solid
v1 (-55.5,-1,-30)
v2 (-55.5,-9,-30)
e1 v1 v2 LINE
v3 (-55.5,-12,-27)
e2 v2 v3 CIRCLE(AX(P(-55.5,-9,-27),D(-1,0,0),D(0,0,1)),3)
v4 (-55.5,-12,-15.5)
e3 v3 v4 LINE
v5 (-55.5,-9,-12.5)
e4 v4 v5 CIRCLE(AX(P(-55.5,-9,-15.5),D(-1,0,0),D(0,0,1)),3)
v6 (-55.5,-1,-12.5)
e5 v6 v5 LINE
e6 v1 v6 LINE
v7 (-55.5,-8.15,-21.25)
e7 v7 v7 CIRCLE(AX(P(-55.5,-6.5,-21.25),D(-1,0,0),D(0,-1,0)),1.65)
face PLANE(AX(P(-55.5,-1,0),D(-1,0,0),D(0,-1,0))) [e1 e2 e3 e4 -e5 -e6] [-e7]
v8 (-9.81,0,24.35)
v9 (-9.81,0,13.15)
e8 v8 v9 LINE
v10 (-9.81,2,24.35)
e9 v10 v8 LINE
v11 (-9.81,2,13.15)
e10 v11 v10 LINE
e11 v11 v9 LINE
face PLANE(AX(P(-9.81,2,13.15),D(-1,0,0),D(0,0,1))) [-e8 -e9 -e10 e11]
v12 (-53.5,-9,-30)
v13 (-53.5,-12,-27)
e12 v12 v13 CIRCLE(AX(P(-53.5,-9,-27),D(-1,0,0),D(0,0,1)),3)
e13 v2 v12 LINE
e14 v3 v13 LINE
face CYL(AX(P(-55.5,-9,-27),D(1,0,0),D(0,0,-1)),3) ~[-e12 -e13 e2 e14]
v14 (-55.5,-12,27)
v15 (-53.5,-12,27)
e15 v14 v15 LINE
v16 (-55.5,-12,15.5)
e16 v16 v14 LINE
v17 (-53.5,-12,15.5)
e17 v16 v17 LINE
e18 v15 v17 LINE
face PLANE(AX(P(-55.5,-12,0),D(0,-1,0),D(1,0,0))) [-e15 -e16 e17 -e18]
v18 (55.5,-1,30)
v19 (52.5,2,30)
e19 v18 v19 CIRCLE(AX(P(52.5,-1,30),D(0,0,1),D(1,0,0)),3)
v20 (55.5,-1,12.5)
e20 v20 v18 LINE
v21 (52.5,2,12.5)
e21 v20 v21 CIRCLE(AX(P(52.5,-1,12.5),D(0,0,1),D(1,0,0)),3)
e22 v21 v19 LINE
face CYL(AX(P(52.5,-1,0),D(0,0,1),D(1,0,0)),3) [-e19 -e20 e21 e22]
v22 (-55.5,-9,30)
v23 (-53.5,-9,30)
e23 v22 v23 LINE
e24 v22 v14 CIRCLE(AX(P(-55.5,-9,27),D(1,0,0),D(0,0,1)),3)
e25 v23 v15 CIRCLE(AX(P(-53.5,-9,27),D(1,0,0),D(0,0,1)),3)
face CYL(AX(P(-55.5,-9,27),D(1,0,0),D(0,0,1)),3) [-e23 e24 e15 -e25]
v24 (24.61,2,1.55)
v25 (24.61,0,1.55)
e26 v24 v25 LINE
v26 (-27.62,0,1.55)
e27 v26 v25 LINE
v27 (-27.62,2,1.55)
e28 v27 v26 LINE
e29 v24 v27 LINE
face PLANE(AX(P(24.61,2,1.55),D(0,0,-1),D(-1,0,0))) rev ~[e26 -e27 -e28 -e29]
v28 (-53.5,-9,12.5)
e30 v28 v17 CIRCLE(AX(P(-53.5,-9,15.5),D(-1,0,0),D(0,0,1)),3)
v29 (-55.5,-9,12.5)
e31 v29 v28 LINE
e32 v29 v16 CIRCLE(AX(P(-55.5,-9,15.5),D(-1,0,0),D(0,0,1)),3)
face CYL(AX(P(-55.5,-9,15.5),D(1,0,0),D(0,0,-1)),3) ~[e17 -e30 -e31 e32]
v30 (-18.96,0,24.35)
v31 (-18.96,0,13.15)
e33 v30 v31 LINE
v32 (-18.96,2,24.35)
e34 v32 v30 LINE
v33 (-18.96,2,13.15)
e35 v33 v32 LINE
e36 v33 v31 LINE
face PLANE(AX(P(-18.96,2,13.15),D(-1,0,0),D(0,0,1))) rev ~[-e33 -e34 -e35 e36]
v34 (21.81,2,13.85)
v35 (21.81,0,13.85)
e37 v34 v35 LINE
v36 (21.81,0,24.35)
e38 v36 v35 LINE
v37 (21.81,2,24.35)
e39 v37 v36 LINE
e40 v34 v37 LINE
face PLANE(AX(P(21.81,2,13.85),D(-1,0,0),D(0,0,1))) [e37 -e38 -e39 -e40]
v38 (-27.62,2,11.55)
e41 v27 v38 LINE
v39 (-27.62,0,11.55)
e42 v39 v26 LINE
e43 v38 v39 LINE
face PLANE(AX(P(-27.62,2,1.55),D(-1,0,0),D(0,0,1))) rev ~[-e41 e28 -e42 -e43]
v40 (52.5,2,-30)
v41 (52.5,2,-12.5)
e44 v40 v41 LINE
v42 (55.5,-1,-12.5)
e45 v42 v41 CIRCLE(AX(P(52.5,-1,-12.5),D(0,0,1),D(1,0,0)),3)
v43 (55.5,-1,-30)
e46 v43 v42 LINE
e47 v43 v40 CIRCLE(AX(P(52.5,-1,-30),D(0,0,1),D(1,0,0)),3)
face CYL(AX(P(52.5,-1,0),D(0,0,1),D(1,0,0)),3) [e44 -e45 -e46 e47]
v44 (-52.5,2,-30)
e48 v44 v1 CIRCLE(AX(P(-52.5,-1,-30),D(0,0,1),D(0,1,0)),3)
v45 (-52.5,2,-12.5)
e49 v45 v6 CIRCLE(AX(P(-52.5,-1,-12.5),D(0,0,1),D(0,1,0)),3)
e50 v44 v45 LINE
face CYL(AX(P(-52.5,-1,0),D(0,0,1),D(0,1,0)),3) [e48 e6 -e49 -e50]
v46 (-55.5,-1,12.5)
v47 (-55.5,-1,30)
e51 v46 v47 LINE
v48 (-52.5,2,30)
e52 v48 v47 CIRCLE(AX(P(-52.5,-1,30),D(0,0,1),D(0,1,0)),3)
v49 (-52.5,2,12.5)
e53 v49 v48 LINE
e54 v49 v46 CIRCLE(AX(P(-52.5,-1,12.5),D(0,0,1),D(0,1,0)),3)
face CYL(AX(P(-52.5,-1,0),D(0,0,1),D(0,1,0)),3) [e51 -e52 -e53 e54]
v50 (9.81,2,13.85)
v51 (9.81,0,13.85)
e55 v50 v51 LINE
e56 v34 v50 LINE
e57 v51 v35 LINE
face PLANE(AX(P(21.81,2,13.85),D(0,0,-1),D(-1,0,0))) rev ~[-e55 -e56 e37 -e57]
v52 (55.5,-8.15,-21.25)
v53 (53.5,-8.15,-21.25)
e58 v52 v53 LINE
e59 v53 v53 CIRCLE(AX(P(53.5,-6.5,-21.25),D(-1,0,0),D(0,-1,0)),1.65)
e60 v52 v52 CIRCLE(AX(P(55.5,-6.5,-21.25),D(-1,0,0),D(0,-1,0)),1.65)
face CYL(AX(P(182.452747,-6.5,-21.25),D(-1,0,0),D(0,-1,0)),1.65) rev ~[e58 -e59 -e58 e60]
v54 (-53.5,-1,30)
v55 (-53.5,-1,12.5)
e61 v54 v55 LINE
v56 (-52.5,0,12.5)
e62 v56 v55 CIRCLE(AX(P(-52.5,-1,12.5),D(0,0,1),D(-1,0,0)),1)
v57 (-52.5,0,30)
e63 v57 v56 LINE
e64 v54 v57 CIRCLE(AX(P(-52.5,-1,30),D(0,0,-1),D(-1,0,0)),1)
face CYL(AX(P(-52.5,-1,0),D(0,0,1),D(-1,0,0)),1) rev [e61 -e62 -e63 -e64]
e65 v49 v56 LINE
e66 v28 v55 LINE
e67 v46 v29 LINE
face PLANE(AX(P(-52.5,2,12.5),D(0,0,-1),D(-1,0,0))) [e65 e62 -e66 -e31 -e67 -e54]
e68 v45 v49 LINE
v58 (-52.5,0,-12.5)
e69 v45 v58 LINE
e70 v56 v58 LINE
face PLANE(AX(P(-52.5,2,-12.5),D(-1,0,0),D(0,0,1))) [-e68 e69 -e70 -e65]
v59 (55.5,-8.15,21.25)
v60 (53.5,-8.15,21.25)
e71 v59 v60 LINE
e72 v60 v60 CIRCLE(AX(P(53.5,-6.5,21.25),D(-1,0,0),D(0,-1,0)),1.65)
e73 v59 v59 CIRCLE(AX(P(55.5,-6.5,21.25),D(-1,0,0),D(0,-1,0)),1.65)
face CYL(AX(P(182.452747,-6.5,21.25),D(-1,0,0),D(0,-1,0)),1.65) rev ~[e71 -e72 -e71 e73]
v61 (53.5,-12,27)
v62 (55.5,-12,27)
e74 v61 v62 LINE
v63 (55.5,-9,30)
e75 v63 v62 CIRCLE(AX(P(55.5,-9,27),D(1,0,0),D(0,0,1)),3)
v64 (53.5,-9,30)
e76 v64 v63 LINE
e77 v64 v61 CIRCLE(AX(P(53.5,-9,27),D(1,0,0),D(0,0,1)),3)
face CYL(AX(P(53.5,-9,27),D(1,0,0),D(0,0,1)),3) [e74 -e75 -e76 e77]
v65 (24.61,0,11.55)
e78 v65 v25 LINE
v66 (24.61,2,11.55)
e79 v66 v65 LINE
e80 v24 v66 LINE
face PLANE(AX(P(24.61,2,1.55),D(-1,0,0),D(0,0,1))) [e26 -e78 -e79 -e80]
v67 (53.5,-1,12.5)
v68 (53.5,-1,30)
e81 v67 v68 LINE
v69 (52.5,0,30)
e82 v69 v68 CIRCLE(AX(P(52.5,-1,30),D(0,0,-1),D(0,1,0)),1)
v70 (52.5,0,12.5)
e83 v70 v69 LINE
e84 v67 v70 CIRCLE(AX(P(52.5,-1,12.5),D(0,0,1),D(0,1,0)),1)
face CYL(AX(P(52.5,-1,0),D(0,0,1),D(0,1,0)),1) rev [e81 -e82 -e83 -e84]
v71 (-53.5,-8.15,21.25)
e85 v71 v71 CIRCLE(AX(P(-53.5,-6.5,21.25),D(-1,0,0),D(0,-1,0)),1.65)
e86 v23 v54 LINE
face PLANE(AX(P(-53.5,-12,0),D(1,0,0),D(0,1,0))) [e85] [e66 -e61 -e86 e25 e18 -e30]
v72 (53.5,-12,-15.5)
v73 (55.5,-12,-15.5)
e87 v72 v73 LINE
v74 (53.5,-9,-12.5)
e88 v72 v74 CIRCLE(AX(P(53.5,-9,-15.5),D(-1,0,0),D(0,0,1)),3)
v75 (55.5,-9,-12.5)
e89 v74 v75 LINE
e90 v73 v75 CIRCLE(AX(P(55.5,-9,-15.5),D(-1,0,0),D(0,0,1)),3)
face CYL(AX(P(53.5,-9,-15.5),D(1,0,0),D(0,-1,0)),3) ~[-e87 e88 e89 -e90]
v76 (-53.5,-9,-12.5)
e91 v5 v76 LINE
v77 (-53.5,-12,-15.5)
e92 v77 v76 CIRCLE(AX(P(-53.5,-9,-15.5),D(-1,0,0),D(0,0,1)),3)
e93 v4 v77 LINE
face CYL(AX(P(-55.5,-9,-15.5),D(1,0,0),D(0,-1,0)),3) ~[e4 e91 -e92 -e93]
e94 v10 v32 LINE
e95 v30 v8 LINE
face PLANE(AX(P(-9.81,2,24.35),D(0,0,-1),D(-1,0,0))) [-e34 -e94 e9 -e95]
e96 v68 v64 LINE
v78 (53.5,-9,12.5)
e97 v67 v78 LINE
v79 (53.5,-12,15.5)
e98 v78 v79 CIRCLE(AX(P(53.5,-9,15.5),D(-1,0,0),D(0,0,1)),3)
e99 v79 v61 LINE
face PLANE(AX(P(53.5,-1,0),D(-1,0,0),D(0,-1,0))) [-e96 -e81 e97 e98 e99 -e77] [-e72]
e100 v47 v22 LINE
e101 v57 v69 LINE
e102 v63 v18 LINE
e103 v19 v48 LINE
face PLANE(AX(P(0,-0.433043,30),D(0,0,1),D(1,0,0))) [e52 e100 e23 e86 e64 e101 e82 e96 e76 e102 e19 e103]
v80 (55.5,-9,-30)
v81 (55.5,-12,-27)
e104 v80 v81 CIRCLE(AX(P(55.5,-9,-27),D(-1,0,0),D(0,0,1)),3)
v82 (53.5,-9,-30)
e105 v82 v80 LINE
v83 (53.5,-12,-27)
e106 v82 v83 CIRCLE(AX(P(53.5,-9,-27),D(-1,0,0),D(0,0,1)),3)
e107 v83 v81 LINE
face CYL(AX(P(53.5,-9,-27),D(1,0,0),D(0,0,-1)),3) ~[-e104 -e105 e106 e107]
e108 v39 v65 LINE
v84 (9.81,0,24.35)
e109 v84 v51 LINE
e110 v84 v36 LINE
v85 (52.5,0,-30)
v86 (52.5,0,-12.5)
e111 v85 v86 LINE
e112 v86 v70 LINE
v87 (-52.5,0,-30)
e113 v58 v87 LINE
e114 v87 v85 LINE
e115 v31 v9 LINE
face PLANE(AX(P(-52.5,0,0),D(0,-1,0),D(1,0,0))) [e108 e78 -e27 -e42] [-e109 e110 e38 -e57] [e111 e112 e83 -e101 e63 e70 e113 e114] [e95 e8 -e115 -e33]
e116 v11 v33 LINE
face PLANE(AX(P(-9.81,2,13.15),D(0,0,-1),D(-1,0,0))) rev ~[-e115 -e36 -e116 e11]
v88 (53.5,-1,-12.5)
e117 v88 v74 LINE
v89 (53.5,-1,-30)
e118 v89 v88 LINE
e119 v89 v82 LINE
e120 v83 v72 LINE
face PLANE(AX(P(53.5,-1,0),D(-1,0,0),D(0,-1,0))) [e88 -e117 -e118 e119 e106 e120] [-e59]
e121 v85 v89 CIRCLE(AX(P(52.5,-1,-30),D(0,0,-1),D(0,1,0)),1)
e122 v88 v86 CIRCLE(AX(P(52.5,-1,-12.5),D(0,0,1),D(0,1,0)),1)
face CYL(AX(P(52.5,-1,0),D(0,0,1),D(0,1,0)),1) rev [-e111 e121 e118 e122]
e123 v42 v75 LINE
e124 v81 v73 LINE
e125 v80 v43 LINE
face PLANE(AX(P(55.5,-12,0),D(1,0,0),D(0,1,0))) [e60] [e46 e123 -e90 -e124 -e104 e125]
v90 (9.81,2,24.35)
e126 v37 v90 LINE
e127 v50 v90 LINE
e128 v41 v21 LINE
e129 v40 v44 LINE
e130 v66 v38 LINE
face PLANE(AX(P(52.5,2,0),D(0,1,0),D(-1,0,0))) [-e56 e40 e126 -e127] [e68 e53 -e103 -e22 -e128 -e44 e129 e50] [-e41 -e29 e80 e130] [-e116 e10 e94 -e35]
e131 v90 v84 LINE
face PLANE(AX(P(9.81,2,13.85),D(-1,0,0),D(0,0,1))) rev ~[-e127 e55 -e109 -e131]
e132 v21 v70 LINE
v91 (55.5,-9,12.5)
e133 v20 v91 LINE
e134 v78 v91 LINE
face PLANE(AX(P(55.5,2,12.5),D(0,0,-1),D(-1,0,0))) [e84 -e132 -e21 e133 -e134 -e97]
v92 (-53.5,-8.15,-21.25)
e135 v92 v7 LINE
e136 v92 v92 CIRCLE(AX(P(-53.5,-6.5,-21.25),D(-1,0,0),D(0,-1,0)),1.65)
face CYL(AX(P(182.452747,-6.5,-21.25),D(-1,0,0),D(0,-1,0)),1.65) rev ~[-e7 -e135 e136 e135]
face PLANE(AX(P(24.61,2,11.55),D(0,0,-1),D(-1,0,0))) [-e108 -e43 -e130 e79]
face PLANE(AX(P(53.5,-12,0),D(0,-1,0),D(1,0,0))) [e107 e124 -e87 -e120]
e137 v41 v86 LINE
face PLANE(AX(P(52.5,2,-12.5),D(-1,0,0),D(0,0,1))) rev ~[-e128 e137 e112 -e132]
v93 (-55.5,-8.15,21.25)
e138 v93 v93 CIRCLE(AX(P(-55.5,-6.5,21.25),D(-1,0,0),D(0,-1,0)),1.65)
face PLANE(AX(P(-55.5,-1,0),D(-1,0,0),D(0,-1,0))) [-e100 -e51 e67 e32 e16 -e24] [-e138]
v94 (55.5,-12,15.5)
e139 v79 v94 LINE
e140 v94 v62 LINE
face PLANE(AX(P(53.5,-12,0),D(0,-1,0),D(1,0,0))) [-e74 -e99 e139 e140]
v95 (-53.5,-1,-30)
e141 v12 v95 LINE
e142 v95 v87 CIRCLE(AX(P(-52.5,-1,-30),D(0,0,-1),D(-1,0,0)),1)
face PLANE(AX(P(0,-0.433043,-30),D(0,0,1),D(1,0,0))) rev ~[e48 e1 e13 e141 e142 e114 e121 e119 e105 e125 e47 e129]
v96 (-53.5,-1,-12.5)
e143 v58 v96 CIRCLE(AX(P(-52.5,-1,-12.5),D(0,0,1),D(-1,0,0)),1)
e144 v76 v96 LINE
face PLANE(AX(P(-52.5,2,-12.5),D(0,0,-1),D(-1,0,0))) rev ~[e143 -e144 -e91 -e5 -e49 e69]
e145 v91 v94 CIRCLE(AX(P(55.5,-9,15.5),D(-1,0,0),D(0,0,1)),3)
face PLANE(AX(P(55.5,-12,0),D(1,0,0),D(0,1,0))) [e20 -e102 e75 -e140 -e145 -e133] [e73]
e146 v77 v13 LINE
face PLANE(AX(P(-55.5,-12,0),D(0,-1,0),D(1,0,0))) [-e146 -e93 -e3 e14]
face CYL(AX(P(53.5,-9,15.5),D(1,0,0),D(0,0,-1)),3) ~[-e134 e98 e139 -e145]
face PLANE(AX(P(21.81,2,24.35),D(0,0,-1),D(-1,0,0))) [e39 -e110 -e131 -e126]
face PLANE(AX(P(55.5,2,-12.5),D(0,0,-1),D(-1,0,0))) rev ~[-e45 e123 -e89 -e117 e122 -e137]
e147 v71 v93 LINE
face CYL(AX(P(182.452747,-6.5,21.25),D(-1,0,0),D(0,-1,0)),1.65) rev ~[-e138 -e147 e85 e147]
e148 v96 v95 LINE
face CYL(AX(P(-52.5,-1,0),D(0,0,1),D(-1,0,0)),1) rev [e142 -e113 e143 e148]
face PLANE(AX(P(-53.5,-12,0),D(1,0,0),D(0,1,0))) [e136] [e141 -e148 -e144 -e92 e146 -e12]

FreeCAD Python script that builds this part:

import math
import FreeCAD as App
import Part
import Sketcher
Q = App.Units.Quantity


def edges_at(feature, points):
    """Names of the edges that pass closest to the given points."""
    edges = feature.Shape.Edges
    near = lambda p: min(range(len(edges)), key=lambda i: edges[i].distToShape(Part.Vertex(*p))[0])
    return sorted({f"Edge{near(p) + 1}" for p in points})


def add_polygon(sketch, points):
    """Adds a closed chain of lines whose ends are joined by coincident constraints."""
    first, n = sketch.GeometryCount, len(points)
    for a, b in zip(points, points[1:] + points[:1]):
        sketch.addGeometry(Part.LineSegment(App.Vector(*a, 0), App.Vector(*b, 0)), False)
    for i in range(n):
        sketch.addConstraint(Sketcher.Constraint("Coincident", first + i, 2, first + (i + 1) % n, 1))

doc = App.newDocument("Part")
body = doc.addObject("PartDesign::Body", "Body")

# Sketch on XY plane
sketch1 = body.newObject("Sketcher::SketchObject", "Sketch")
sketch1.AttachmentSupport = (doc.getObject("XY_Plane"), [""])
sketch1.MapMode = "FlatFace"
sketch1.addGeometry(Part.LineSegment(App.Vector(-52.5, 0, 0), App.Vector(52.5, 0, 0)), False)
sketch1.addGeometry(Part.ArcOfCircle(Part.Circle(App.Vector(52.5, -1, 0), App.Vector(0, 0, 1), 1), math.radians(0), math.radians(90)), False)
sketch1.addGeometry(Part.LineSegment(App.Vector(53.5, -1, 0), App.Vector(53.5, -12, 0)), False)
sketch1.addGeometry(Part.LineSegment(App.Vector(53.5, -12, 0), App.Vector(55.5, -12, 0)), False)
sketch1.addGeometry(Part.LineSegment(App.Vector(55.5, -12, 0), App.Vector(55.5, -1, 0)), False)
sketch1.addGeometry(Part.ArcOfCircle(Part.Circle(App.Vector(52.5, -1, 0), App.Vector(0, 0, 1), 3), math.radians(0), math.radians(90)), False)
sketch1.addGeometry(Part.LineSegment(App.Vector(52.5, 2, 0), App.Vector(-52.5, 2, 0)), False)
sketch1.addGeometry(Part.ArcOfCircle(Part.Circle(App.Vector(-52.5, -1, 0), App.Vector(0, 0, 1), 3), math.radians(90), math.radians(180)), False)
sketch1.addGeometry(Part.LineSegment(App.Vector(-55.5, -1, 0), App.Vector(-55.5, -12, 0)), False)
sketch1.addGeometry(Part.LineSegment(App.Vector(-55.5, -12, 0), App.Vector(-53.5, -12, 0)), False)
sketch1.addGeometry(Part.LineSegment(App.Vector(-53.5, -12, 0), App.Vector(-53.5, -1, 0)), False)
sketch1.addGeometry(Part.ArcOfCircle(Part.Circle(App.Vector(-52.5, -1, 0), App.Vector(0, 0, 1), 1), math.radians(90), math.radians(180)), False)
sketch1.addConstraint(Sketcher.Constraint("Tangent", 0, 2, 1, 2))
sketch1.addConstraint(Sketcher.Constraint("Tangent", 1, 1, 2, 1))
sketch1.addConstraint(Sketcher.Constraint("Coincident", 2, 2, 3, 1))
sketch1.addConstraint(Sketcher.Constraint("Coincident", 3, 2, 4, 1))
sketch1.addConstraint(Sketcher.Constraint("Tangent", 4, 2, 5, 1))
sketch1.addConstraint(Sketcher.Constraint("Tangent", 5, 2, 6, 1))
sketch1.addConstraint(Sketcher.Constraint("Tangent", 6, 2, 7, 1))
sketch1.addConstraint(Sketcher.Constraint("Tangent", 7, 2, 8, 1))
sketch1.addConstraint(Sketcher.Constraint("Coincident", 8, 2, 9, 1))
sketch1.addConstraint(Sketcher.Constraint("Coincident", 9, 2, 10, 1))
sketch1.addConstraint(Sketcher.Constraint("Tangent", 10, 2, 11, 2))
sketch1.addConstraint(Sketcher.Constraint("Tangent", 11, 1, 0, 1))
sketch1.addConstraint(Sketcher.Constraint("Horizontal", 0))
sketch1.addConstraint(Sketcher.Constraint("Vertical", 2))
sketch1.addConstraint(Sketcher.Constraint("Horizontal", 3))
sketch1.addConstraint(Sketcher.Constraint("Vertical", 4))
sketch1.addConstraint(Sketcher.Constraint("Horizontal", 6))
sketch1.addConstraint(Sketcher.Constraint("Vertical", 8))
sketch1.addConstraint(Sketcher.Constraint("Horizontal", 9))
sketch1.addConstraint(Sketcher.Constraint("Vertical", 10))
sketch1.addConstraint(Sketcher.Constraint("Coincident", 5, 3, 1, 3))
sketch1.addConstraint(Sketcher.Constraint("Coincident", 11, 3, 7, 3))
sketch1.addConstraint(Sketcher.Constraint("Equal", 5, 7))
sketch1.addConstraint(Sketcher.Constraint("Symmetric", 0, 2, 11, 1, -1, 1))
sketch1.addConstraint(Sketcher.Constraint("Horizontal", 3, 2, 8, 2))
sketch1.addConstraint(Sketcher.Constraint("Radius", 1, Q("1 mm")))
sketch1.addConstraint(Sketcher.Constraint("Radius", 5, Q("3 mm")))
sketch1.addConstraint(Sketcher.Constraint("DistanceX", 0, 1, 0, 2, Q("105 mm")))
sketch1.addConstraint(Sketcher.Constraint("DistanceY", 2, 2, 2, 1, Q("11 mm")))
pad1 = body.newObject("PartDesign::Pad", "Pad")
pad1.Profile = sketch1
pad1.Length = 60
pad1.Midplane = True

# Sketch on XZ plane
sketch2 = body.newObject("Sketcher::SketchObject", "Sketch001")
sketch2.AttachmentSupport = (doc.getObject("XZ_Plane"), [""])
sketch2.MapMode = "FlatFace"
sketch2.AttachmentOffset = App.Placement(App.Vector(0, 0, -2), App.Rotation())
add_polygon(sketch2, [(55.5, 12.5), (55.5, -12.5), (52.5, -12.5), (52.5, 12.5)])  # lines 0-3
add_polygon(sketch2, [(-52.5, 12.5), (-52.5, -12.5), (-55.5, -12.5), (-55.5, 12.5)])  # lines 4-7
add_polygon(sketch2, [(21.81, 24.35), (21.81, 13.85), (9.81, 13.85), (9.81, 24.35)])  # lines 8-11
add_polygon(sketch2, [(-9.81, 24.35), (-9.81, 13.15), (-18.96, 13.15), (-18.96, 24.35)])  # lines 12-15
add_polygon(sketch2, [(24.61, 11.55), (24.61, 1.55), (-27.62, 1.55), (-27.62, 11.55)])  # lines 16-19
sketch2.addConstraint(Sketcher.Constraint("Vertical", 0))
sketch2.addConstraint(Sketcher.Constraint("Horizontal", 1))
sketch2.addConstraint(Sketcher.Constraint("Vertical", 2))
sketch2.addConstraint(Sketcher.Constraint("Horizontal", 3))
sketch2.addConstraint(Sketcher.Constraint("Vertical", 4))
sketch2.addConstraint(Sketcher.Constraint("Horizontal", 5))
sketch2.addConstraint(Sketcher.Constraint("Vertical", 6))
sketch2.addConstraint(Sketcher.Constraint("Horizontal", 7))
sketch2.addConstraint(Sketcher.Constraint("Vertical", 8))
sketch2.addConstraint(Sketcher.Constraint("Horizontal", 9))
sketch2.addConstraint(Sketcher.Constraint("Vertical", 10))
sketch2.addConstraint(Sketcher.Constraint("Horizontal", 11))
sketch2.addConstraint(Sketcher.Constraint("Vertical", 12))
sketch2.addConstraint(Sketcher.Constraint("Horizontal", 13))
sketch2.addConstraint(Sketcher.Constraint("Vertical", 14))
sketch2.addConstraint(Sketcher.Constraint("Horizontal", 15))
sketch2.addConstraint(Sketcher.Constraint("Vertical", 16))
sketch2.addConstraint(Sketcher.Constraint("Horizontal", 17))
sketch2.addConstraint(Sketcher.Constraint("Vertical", 18))
sketch2.addConstraint(Sketcher.Constraint("Horizontal", 19))
sketch2.addConstraint(Sketcher.Constraint("Symmetric", 2, 2, 4, 2, -1, 1))
sketch2.addConstraint(Sketcher.Constraint("Symmetric", 0, 2, 6, 2, -1, 1))
sketch2.addConstraint(Sketcher.Constraint("Symmetric", 10, 2, 15, 2, -2))
sketch2.addConstraint(Sketcher.Constraint("Horizontal", 1, 2, 4, 2))
sketch2.addConstraint(Sketcher.Constraint("DistanceX", 1, 2, 1, 1, Q("3 mm")))
sketch2.addConstraint(Sketcher.Constraint("DistanceX", 9, 2, 9, 1, Q("12 mm")))
sketch2.addConstraint(Sketcher.Constraint("DistanceY", 0, 2, 0, 1, Q("25 mm")))
sketch2.addConstraint(Sketcher.Constraint("DistanceY", 16, 2, 16, 1, Q("10 mm")))
sketch2.addConstraint(Sketcher.Constraint("DistanceY", 8, 2, 8, 1, Q("10.5 mm")))
sketch2.addConstraint(Sketcher.Constraint("DistanceY", 12, 2, 12, 1, Q("11.2 mm")))
sketch2.addConstraint(Sketcher.Constraint("DistanceX", 4, 2, 1, 2, Q("105 mm")))
sketch2.addConstraint(Sketcher.Constraint("DistanceX", 13, 2, 13, 1, Q("9.15 mm")))
sketch2.addConstraint(Sketcher.Constraint("DistanceX", 17, 2, 17, 1, Q("52.23 mm")))
sketch2.addConstraint(Sketcher.Constraint("DistanceX", 8, 2, 16, 2, Q("2.8 mm")))
sketch2.addConstraint(Sketcher.Constraint("DistanceY", 16, 2, 8, 2, Q("12.3 mm")))
sketch2.addConstraint(Sketcher.Constraint("DistanceX", -1, 1, 8, 2, Q("21.81 mm")))
sketch2.addConstraint(Sketcher.Constraint("DistanceY", -1, 1, 8, 2, Q("13.85 mm")))
pocket1 = body.newObject("PartDesign::Pocket", "Pocket")
pocket1.Profile = sketch2
pocket1.Type = "ThroughAll"
pocket1.Reversed = True

# Sketch on YZ plane
sketch3 = body.newObject("Sketcher::SketchObject", "Sketch002")
sketch3.AttachmentSupport = (doc.getObject("YZ_Plane"), [""])
sketch3.MapMode = "FlatFace"
sketch3.AttachmentOffset = App.Placement(App.Vector(0, 0, 55.5), App.Rotation())
sketch3.addGeometry(Part.Circle(App.Vector(-6.5, 21.25, 0), App.Vector(0, 0, 1), 1.65), False)
sketch3.addGeometry(Part.Circle(App.Vector(-6.5, -21.25, 0), App.Vector(0, 0, 1), 1.65), False)
sketch3.addConstraint(Sketcher.Constraint("Equal", 0, 1))
sketch3.addConstraint(Sketcher.Constraint("Symmetric", 0, 3, 1, 3, -1))
sketch3.addConstraint(Sketcher.Constraint("Diameter", 0, Q("3.3 mm")))
sketch3.addConstraint(Sketcher.Constraint("DistanceX", 0, 3, -1, 1, Q("6.5 mm")))
sketch3.addConstraint(Sketcher.Constraint("DistanceY", 1, 3, 0, 3, Q("42.5 mm")))
doc.recompute()
hole = body.newObject("PartDesign::Hole", "Hole")
hole.Profile = sketch3
hole.ThreadType = "None"
hole.Diameter = 3.3
hole.DepthType = "ThroughAll"
doc.recompute()

fillet = body.newObject("PartDesign::Fillet", "Fillet")
fillet.Base = (hole, edges_at(hole, [
    (-54.5, -12, 30),
    (-54.5, -12, 12.5),
    (-54.5, -12, -12.5),
    (-54.5, -12, -30),
    (54.5, -12, 30),
    (54.5, -12, 12.5),
    (54.5, -12, -12.5),
    (54.5, -12, -30),
]))
fillet.Radius = 3

doc.recompute()
